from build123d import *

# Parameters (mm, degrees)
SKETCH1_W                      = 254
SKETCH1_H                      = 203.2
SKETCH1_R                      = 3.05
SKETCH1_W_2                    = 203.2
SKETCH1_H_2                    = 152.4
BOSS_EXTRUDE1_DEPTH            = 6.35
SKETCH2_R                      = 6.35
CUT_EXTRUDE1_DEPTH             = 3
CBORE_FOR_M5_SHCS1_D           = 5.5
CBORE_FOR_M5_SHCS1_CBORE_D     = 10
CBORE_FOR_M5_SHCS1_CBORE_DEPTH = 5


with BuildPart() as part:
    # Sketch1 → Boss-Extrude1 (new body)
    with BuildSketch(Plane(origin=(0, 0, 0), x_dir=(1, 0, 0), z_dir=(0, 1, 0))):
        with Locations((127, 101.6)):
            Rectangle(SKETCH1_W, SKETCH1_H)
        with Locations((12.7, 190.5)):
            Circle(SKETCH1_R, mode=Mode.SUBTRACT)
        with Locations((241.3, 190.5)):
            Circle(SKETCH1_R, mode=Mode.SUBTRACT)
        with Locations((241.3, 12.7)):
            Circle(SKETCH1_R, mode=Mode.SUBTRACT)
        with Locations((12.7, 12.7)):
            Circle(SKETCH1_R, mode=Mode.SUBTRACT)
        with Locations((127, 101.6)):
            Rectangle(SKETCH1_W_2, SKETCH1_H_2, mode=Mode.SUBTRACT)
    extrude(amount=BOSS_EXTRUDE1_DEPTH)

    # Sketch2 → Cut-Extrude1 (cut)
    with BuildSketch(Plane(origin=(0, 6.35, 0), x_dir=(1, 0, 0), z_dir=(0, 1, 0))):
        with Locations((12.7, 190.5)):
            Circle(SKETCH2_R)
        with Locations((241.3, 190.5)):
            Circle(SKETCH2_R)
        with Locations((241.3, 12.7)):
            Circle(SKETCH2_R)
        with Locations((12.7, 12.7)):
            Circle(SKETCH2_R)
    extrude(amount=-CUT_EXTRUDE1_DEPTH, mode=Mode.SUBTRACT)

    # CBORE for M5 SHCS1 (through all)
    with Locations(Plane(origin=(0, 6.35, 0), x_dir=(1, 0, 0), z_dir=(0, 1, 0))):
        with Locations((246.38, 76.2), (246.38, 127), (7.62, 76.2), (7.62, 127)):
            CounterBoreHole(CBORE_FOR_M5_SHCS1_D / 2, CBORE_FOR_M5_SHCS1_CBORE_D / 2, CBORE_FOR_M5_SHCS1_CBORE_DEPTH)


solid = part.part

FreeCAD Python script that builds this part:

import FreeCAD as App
import Part
import Sketcher
from FreeCAD import Vector
Q = App.Units.Quantity

doc = App.newDocument("Part")
body = doc.addObject("PartDesign::Body", "Body")

sketch1 = doc.addObject("Sketcher::SketchObject", "Sketch")
body.addObject(sketch1)
sketch1.AttachmentSupport = (doc.XZ_Plane, [""])
sketch1.MapMode = "FlatFace"
sketch1.addGeometry([
    Part.LineSegment(Vector(0, -203.2, 0), Vector(0, 0, 0)),
    Part.LineSegment(Vector(0, 0, 0), Vector(254, 0, 0)),
    Part.LineSegment(Vector(254, 0, 0), Vector(254, -203.2, 0)),
    Part.LineSegment(Vector(254, -203.2, 0), Vector(0, -203.2, 0)),
    Part.Circle(Vector(12.7, -12.7, 0), Vector(0, 0, 1), 3.05),
    Part.Circle(Vector(241.3, -12.7, 0), Vector(0, 0, 1), 3.05),
    Part.Circle(Vector(12.7, -190.5, 0), Vector(0, 0, 1), 3.05),
    Part.LineSegment(Vector(228.6, -25.4, 0), Vector(25.4, -25.4, 0)),
    Part.LineSegment(Vector(25.4, -25.4, 0), Vector(25.4, -177.8, 0)),
    Part.LineSegment(Vector(25.4, -177.8, 0), Vector(228.6, -177.8, 0)),
    Part.LineSegment(Vector(228.6, -177.8, 0), Vector(228.6, -25.4, 0)),
    Part.Circle(Vector(241.3, -190.5, 0), Vector(0, 0, 1), 3.05),
], False)
sketch1.addConstraint([
    Sketcher.Constraint("Coincident", 0, 2, 1, 1),
    Sketcher.Constraint("Coincident", 1, 2, 2, 1),
    Sketcher.Constraint("Coincident", 2, 2, 3, 1),
    Sketcher.Constraint("Coincident", 3, 2, 0, 1),
    Sketcher.Constraint("Coincident", 7, 2, 8, 1),
    Sketcher.Constraint("Coincident", 8, 2, 9, 1),
    Sketcher.Constraint("Coincident", 9, 2, 10, 1),
    Sketcher.Constraint("Coincident", 10, 2, 7, 1),
    Sketcher.Constraint("Vertical", 0),
    Sketcher.Constraint("Horizontal", 1),
    Sketcher.Constraint("Vertical", 2),
    Sketcher.Constraint("Horizontal", 3),
    Sketcher.Constraint("Horizontal", 7),
    Sketcher.Constraint("Vertical", 8),
    Sketcher.Constraint("Horizontal", 9),
    Sketcher.Constraint("Vertical", 10),
    Sketcher.Constraint("Coincident", 0, 2, -1, 1),
    Sketcher.Constraint("Equal", 4, 5),
    Sketcher.Constraint("Equal", 5, 6),
    Sketcher.Constraint("Equal", 6, 11),
    Sketcher.Constraint("Horizontal", 4, 3, 5, 3),
    Sketcher.Constraint("Horizontal", 6, 3, 11, 3),
    Sketcher.Constraint("Vertical", 4, 3, 6, 3),
    Sketcher.Constraint("Vertical", 5, 3, 11, 3),
    Sketcher.Constraint("Equal", 9, 0),
    Sketcher.Constraint("DistanceX", 1, 1, 1, 2, Q("10 in")),
    Sketcher.Constraint("DistanceX", 7, 2, 7, 1, Q("8 in")),
    Sketcher.Constraint("DistanceY", 8, 2, 8, 1, Q("6 in")),
    Sketcher.Constraint("DistanceX", -1, 1, 7, 2, Q("1 in")),
    Sketcher.Constraint("DistanceY", 7, 2, -1, 1, Q("1 in")),
    Sketcher.Constraint("DistanceX", 4, 3, 5, 3, Q("9 in")),
    Sketcher.Constraint("DistanceY", 6, 3, 4, 3, Q("7 in")),
    Sketcher.Constraint("DistanceX", -1, 1, 4, 3, Q("0.5 in")),
    Sketcher.Constraint("DistanceY", 4, 3, -1, 1, Q("0.5 in")),
    Sketcher.Constraint("Diameter", 4, Q("6.1 mm")),
])
pad1 = doc.addObject("PartDesign::Pad", "Pad")
body.addObject(pad1)
pad1.Profile = sketch1
pad1.Length = Q("0.25 in")
pad1.Reversed = True

sketch2 = doc.addObject("Sketcher::SketchObject", "Sketch001")
body.addObject(sketch2)
sketch2.AttachmentSupport = (doc.XZ_Plane, [""])
sketch2.MapMode = "FlatFace"
sketch2.AttachmentOffset = App.Placement(Vector(0, 0, -0.25 * 25.4), App.Rotation())
sketch2.addGeometry([
    Part.Circle(Vector(12.7, -190.5, 0), Vector(0, 0, 1), 6.35),
    Part.Circle(Vector(241.3, -190.5, 0), Vector(0, 0, 1), 6.35),
    Part.Circle(Vector(241.3, -12.7, 0), Vector(0, 0, 1), 6.35),
    Part.Circle(Vector(12.7, -12.7, 0), Vector(0, 0, 1), 6.35),
], False)
sketch2.addConstraint([
    Sketcher.Constraint("Equal", 0, 1),
    Sketcher.Constraint("Equal", 1, 2),
    Sketcher.Constraint("Equal", 2, 3),
    Sketcher.Constraint("Horizontal", 0, 3, 1, 3),
    Sketcher.Constraint("Horizontal", 2, 3, 3, 3),
    Sketcher.Constraint("Vertical", 1, 3, 2, 3),
    Sketcher.Constraint("Vertical", 0, 3, 3, 3),
    Sketcher.Constraint("Diameter", 0, Q("0.5 in")),
    Sketcher.Constraint("DistanceX", 0, 3, 1, 3, Q("9 in")),
    Sketcher.Constraint("DistanceY", 1, 3, 2, 3, Q("7 in")),
    Sketcher.Constraint("DistanceX", -1, 1, 0, 3, Q("0.5 in")),
    Sketcher.Constraint("DistanceY", 0, 3, -1, 1, Q("7.5 in")),
])
pocket1 = doc.addObject("PartDesign::Pocket", "Pocket")
body.addObject(pocket1)
pocket1.Profile = sketch2
pocket1.Length = 3
pocket1.Reversed = True

sketch3 = doc.addObject("Sketcher::SketchObject", "Sketch002")
body.addObject(sketch3)
sketch3.AttachmentSupport = (doc.XZ_Plane, [""])
sketch3.MapMode = "FlatFace"
sketch3.AttachmentOffset = App.Placement(Vector(0, 0, -0.25 * 25.4), App.Rotation())
sketch3.addGeometry([
    Part.Circle(Vector(246.38, -76.2, 0), Vector(0, 0, 1), 2.75),
    Part.Circle(Vector(246.38, -127, 0), Vector(0, 0, 1), 2.75),
    Part.Circle(Vector(7.62, -76.2, 0), Vector(0, 0, 1), 2.75),
    Part.Circle(Vector(7.62, -127, 0), Vector(0, 0, 1), 2.75),
], False)
sketch3.addConstraint([
    Sketcher.Constraint("Equal", 0, 1),
    Sketcher.Constraint("Equal", 1, 2),
    Sketcher.Constraint("Equal", 2, 3),
    Sketcher.Constraint("Horizontal", 0, 3, 2, 3),
    Sketcher.Constraint("Horizontal", 1, 3, 3, 3),
    Sketcher.Constraint("Vertical", 0, 3, 1, 3),
    Sketcher.Constraint("Vertical", 2, 3, 3, 3),
    Sketcher.Constraint("DistanceY", 0, 3, -1, 1, Q("3 in")),
    Sketcher.Constraint("DistanceY", 1, 3, -1, 1, Q("5 in")),
    Sketcher.Constraint("DistanceX", -1, 1, 0, 3, Q("9.7 in")),
    Sketcher.Constraint("DistanceX", -1, 1, 2, 3, Q("0.3 in")),
    Sketcher.Constraint("Diameter", 0, Q("5.5 mm")),
])
doc.recompute()
hole = doc.addObject("PartDesign::Hole", "Hole")
body.addObject(hole)
hole.Profile = sketch3
hole.ThreadType = "None"
hole.Diameter = 5.5
hole.DepthType = "ThroughAll"
hole.HoleCutType = "Counterbore"
hole.HoleCutDiameter = 10
hole.HoleCutDepth = 5
hole.Reversed = True

doc.recompute()
